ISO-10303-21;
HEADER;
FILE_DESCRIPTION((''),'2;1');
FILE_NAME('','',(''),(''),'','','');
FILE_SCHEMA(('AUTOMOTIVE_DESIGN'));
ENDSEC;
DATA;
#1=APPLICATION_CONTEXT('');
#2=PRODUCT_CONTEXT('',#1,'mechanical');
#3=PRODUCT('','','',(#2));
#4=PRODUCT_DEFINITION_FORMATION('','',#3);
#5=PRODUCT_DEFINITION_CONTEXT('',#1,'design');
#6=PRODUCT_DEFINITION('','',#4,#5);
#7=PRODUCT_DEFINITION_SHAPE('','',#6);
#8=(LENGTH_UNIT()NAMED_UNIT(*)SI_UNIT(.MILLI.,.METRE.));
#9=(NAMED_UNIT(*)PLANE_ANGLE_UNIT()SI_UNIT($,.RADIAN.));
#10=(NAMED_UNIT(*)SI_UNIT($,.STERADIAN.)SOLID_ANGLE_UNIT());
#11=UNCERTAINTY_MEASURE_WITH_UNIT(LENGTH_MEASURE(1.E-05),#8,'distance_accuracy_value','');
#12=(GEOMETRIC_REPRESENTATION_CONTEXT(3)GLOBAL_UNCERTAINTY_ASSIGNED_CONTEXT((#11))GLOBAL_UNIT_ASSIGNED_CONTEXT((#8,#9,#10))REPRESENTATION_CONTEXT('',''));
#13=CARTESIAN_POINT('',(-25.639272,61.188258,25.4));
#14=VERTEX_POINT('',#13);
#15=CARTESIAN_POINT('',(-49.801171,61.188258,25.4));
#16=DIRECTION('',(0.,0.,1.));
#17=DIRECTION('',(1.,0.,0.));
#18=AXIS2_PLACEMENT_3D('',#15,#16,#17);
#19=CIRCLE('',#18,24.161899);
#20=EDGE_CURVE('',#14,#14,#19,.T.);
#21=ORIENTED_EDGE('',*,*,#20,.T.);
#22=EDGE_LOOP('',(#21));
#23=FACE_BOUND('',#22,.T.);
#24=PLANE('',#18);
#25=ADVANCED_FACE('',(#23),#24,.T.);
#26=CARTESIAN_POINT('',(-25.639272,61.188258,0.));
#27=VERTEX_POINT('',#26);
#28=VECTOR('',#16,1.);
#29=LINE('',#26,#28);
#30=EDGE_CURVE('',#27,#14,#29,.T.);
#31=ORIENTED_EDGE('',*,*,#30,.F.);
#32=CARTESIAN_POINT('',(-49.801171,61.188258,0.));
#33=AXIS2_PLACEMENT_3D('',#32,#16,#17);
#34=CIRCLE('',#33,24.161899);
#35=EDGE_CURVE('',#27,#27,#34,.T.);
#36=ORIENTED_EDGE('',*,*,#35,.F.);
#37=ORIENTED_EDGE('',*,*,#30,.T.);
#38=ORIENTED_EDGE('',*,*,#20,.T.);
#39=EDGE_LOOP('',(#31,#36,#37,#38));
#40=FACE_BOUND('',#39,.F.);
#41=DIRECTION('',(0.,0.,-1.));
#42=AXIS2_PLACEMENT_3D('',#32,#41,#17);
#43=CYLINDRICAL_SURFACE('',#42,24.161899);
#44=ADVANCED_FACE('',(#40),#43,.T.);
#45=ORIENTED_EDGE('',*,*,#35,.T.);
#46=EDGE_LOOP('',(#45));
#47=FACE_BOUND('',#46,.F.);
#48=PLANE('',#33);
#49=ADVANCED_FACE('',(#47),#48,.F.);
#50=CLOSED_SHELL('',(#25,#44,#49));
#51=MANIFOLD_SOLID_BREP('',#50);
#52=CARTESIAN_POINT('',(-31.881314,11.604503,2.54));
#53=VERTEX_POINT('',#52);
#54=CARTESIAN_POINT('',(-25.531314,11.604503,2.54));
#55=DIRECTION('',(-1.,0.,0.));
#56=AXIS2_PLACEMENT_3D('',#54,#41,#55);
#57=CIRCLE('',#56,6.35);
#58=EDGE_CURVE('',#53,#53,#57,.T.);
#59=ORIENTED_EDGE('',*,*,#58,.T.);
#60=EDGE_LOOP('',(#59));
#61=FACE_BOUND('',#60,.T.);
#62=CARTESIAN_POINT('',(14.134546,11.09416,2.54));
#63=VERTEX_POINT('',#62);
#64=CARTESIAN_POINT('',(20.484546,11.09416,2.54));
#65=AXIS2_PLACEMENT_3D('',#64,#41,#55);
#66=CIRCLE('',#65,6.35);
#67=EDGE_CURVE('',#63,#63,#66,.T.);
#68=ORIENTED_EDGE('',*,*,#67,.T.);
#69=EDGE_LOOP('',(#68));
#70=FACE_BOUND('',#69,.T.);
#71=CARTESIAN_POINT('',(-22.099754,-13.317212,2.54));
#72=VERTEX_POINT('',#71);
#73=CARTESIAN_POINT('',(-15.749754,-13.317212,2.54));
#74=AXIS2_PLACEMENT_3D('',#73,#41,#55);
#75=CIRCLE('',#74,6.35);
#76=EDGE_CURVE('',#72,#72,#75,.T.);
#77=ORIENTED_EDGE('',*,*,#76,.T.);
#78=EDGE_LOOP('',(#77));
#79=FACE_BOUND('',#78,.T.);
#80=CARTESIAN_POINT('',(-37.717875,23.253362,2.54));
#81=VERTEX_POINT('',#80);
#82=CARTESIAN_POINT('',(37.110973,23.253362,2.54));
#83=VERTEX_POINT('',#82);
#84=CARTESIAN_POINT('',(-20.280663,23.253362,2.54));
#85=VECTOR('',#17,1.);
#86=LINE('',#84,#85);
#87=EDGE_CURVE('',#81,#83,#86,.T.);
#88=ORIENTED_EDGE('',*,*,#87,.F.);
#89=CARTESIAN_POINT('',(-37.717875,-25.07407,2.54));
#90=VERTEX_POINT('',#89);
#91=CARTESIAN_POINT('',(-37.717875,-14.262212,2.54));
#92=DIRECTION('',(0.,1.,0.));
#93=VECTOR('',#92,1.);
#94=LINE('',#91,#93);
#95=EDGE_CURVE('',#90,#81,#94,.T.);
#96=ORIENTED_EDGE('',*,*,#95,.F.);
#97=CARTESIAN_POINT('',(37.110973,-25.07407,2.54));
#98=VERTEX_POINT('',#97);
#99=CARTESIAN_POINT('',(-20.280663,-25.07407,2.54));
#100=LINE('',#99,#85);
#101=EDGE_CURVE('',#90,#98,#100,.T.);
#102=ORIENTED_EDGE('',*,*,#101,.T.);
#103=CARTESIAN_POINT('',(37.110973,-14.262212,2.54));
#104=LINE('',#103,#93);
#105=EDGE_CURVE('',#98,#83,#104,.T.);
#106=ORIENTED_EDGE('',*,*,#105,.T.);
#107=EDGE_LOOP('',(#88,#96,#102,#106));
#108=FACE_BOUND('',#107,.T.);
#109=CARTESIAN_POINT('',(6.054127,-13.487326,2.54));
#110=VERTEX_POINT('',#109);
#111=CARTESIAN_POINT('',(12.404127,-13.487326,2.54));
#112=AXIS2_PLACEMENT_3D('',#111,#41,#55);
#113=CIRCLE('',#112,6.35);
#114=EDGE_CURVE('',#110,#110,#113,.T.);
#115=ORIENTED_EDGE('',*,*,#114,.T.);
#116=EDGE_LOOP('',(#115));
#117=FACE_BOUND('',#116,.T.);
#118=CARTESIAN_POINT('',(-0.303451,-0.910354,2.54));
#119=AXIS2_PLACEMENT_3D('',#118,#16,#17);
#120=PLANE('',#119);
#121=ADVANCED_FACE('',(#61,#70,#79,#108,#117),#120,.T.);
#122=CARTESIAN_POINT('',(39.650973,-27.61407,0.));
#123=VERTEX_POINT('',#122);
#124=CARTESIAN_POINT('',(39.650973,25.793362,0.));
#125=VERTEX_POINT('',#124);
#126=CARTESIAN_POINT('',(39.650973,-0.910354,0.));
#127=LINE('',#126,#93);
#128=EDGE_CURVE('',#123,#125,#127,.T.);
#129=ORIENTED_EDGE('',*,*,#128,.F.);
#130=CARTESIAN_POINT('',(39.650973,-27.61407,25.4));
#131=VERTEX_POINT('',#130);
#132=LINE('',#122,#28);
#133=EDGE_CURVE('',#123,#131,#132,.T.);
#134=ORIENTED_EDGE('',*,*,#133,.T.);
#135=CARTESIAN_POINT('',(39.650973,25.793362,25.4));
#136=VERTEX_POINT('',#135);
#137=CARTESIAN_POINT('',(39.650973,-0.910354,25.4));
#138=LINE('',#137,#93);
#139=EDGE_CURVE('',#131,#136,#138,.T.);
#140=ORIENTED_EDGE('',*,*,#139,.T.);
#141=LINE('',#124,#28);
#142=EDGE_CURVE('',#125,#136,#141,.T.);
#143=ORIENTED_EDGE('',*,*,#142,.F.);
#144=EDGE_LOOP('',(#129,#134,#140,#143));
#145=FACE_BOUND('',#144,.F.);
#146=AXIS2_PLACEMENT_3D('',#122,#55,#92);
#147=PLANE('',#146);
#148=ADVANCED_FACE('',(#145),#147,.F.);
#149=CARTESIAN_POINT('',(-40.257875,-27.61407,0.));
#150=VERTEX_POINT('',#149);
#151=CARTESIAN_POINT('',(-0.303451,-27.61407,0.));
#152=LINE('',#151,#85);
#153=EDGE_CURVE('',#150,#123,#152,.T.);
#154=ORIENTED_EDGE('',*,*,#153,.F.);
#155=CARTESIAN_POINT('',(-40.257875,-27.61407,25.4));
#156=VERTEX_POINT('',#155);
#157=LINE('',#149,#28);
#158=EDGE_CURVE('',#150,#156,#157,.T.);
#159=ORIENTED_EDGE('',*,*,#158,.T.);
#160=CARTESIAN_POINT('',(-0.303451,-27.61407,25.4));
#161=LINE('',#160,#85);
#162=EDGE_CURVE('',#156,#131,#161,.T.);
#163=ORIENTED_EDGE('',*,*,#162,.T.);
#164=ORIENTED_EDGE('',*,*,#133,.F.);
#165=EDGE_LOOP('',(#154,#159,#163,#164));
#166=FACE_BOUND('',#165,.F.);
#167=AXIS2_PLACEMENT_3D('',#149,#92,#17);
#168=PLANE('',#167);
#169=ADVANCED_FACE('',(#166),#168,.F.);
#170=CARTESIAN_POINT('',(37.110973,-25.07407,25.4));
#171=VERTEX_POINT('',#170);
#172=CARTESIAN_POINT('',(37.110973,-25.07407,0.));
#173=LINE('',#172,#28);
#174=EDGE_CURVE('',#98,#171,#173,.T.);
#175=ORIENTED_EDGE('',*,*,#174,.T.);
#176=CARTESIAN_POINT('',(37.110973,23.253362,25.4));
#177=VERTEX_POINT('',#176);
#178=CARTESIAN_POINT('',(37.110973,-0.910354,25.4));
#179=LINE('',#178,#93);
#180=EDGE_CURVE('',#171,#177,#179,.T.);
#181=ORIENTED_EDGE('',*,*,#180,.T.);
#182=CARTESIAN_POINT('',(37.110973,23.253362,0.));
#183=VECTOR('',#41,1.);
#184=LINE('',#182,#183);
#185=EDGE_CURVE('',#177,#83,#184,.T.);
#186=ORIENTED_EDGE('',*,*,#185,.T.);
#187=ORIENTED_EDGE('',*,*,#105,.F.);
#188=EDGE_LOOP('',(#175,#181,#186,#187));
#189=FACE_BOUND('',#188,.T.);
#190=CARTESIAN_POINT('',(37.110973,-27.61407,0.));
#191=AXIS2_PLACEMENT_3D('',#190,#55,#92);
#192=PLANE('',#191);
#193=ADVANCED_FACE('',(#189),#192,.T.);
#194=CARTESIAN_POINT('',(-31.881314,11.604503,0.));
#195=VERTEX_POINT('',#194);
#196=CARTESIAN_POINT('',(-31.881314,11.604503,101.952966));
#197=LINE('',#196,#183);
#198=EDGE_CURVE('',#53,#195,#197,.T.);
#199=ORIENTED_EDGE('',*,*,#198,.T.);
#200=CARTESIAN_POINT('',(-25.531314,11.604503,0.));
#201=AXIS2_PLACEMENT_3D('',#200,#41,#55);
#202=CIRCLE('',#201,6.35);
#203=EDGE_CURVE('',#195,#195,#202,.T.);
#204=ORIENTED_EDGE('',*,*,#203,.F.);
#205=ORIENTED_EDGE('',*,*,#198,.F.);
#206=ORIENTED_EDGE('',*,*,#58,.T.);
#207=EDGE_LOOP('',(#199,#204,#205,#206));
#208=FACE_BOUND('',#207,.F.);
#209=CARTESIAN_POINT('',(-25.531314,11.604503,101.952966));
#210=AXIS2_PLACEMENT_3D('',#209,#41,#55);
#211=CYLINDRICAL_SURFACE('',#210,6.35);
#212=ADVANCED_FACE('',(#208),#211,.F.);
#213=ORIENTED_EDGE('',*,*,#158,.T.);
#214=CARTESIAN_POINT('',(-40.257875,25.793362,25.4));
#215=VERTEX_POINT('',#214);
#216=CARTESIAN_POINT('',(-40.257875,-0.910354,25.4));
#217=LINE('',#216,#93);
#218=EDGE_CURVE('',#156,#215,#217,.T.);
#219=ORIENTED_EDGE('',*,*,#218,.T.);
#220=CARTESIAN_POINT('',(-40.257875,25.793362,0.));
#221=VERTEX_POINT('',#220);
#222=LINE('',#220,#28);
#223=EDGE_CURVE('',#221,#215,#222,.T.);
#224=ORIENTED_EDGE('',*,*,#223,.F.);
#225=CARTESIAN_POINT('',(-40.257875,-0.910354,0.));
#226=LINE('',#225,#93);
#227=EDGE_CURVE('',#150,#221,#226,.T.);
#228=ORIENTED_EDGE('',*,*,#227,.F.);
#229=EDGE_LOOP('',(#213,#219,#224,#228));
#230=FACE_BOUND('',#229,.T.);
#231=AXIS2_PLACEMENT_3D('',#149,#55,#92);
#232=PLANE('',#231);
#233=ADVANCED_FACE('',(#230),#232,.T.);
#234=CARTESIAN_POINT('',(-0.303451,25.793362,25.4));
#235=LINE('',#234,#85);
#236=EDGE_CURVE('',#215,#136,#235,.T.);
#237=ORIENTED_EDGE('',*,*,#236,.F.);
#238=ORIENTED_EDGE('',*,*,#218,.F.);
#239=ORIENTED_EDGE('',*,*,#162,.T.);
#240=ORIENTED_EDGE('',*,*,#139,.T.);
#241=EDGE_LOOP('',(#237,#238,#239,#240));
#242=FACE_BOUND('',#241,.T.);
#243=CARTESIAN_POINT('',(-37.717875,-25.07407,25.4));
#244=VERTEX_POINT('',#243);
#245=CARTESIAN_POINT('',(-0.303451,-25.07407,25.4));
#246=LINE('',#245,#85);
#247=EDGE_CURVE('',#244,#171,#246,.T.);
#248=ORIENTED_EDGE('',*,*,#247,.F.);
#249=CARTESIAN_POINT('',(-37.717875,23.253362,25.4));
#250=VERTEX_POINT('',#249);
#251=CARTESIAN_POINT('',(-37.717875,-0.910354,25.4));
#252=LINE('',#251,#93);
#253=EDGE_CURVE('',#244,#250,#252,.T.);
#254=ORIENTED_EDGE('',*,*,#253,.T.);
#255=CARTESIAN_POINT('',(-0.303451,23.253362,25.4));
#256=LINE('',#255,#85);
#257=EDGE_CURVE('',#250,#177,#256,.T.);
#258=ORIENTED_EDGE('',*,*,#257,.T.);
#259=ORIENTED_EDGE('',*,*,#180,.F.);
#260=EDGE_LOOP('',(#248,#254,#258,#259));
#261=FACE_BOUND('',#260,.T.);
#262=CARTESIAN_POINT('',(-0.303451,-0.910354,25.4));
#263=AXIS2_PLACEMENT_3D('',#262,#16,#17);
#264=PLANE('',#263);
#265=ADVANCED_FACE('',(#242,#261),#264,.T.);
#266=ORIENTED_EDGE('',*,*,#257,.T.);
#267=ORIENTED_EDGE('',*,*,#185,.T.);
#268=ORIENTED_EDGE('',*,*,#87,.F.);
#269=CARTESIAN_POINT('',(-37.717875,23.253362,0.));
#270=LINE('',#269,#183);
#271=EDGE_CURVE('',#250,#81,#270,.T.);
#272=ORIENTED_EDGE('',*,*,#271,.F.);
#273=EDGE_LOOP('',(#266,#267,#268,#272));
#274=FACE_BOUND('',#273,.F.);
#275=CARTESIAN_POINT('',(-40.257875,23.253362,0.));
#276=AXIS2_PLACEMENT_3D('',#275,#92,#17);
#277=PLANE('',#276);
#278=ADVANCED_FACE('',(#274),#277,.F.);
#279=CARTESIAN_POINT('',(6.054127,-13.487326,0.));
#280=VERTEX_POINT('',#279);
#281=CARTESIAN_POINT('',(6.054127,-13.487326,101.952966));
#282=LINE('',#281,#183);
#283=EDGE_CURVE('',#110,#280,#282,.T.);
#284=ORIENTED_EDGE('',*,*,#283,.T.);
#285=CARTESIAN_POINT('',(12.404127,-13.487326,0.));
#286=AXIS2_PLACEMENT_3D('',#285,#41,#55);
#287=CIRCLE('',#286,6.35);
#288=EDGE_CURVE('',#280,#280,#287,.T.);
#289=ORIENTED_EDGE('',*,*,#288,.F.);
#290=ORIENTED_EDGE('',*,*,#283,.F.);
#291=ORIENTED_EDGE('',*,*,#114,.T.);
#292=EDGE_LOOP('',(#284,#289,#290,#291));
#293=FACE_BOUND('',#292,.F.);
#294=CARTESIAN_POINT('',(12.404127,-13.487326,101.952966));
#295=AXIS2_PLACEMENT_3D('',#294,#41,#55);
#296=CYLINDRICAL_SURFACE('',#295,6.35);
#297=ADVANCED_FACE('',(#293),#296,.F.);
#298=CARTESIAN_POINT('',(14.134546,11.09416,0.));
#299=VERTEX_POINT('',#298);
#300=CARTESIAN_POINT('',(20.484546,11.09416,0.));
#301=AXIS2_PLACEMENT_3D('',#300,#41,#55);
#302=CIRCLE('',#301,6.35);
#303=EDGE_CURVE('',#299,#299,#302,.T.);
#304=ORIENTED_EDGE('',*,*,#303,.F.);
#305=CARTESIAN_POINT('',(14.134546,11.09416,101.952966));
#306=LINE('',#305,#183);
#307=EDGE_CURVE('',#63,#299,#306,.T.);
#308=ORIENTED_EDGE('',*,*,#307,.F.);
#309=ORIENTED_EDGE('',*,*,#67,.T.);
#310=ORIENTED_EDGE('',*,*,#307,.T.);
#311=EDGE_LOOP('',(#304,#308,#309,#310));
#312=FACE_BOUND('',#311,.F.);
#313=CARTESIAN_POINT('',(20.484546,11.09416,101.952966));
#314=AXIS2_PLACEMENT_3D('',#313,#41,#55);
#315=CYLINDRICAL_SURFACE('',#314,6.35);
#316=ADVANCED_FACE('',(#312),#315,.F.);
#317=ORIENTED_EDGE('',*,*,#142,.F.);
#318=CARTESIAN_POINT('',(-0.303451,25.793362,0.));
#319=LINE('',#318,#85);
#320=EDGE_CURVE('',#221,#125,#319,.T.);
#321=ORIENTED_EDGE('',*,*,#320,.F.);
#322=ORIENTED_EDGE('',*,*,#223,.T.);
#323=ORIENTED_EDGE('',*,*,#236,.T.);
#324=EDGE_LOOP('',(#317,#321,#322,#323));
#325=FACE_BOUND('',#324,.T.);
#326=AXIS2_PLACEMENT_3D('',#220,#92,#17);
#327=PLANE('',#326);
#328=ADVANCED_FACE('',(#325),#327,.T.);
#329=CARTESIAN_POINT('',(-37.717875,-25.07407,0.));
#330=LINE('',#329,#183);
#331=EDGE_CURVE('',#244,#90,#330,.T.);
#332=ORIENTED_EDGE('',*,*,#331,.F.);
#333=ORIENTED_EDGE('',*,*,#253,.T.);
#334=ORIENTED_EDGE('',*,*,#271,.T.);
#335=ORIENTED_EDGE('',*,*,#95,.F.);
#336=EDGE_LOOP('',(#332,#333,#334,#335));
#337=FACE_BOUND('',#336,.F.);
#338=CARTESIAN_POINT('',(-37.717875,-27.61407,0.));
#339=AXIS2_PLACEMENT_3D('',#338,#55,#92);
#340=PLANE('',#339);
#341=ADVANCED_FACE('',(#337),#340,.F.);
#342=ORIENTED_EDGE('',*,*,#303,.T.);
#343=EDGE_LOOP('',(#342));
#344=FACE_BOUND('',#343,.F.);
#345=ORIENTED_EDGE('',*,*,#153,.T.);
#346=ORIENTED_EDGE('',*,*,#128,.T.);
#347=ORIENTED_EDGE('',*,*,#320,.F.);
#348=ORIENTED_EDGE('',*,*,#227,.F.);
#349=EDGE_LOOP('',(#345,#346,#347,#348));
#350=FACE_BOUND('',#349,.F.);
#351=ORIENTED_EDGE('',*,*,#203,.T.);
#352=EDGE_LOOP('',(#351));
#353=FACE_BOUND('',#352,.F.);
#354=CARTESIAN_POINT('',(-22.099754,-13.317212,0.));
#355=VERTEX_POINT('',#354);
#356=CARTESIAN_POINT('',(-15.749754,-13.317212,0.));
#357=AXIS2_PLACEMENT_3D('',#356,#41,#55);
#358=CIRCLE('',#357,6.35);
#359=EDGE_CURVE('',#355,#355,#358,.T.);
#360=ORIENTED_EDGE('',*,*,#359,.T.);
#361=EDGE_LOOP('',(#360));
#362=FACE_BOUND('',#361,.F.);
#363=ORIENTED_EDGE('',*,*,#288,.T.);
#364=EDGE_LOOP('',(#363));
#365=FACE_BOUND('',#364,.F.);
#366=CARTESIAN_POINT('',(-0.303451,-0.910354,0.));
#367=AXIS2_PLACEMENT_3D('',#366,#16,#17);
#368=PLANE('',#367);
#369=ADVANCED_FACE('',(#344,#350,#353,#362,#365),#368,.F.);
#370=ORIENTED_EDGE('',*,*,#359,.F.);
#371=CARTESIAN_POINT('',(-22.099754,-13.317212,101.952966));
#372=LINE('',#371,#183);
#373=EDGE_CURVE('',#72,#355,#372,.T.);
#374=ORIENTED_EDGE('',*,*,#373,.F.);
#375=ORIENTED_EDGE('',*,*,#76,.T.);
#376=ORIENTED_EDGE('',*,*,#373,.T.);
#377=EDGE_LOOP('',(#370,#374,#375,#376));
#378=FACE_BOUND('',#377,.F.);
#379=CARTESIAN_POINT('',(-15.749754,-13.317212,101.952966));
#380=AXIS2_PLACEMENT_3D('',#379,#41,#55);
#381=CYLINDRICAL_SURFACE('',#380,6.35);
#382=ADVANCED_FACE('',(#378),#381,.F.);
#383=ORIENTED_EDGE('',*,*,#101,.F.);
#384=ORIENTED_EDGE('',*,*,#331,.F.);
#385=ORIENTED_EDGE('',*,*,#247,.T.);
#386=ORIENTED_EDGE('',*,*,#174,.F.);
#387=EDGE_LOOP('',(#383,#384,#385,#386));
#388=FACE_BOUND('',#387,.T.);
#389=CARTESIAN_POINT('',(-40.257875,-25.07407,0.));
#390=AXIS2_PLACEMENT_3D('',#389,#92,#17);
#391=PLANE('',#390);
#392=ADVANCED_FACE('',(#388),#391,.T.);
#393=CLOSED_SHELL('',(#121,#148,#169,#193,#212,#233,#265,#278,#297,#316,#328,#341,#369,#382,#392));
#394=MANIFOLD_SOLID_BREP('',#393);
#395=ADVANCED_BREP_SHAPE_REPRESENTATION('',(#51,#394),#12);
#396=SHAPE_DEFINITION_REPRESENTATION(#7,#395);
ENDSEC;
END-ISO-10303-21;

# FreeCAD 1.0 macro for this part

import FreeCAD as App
import Part
import Sketcher

V = App.Vector
Q = App.Units.Quantity


def faces_at(feature, points):
    """Names of the faces that lie closest to the given points."""
    faces = feature.Shape.Faces
    near = lambda p: min(range(len(faces)), key=lambda i: faces[i].distToShape(Part.Vertex(*p))[0])
    return sorted({f"Face{near(p) + 1}" for p in points})


def add_polygon(sketch, points):
    """Adds a closed chain of lines whose ends are joined by coincident constraints."""
    first, n = sketch.GeometryCount, len(points)
    for a, b in zip(points, points[1:] + points[:1]):
        sketch.addGeometry(Part.LineSegment(App.Vector(*a, 0), App.Vector(*b, 0)), False)
    for i in range(n):
        sketch.addConstraint(Sketcher.Constraint("Coincident", first + i, 2, first + (i + 1) % n, 1))

doc = App.newDocument("Part")
body = doc.addObject("PartDesign::Body", "Body")

# Sketch on XY plane
sketch1 = body.newObject("Sketcher::SketchObject", "Sketch")
sketch1.AttachmentSupport = (doc.getObject("XY_Plane"), [""])
sketch1.MapMode = "FlatFace"
add_polygon(sketch1, [(-40, 26), (-40, -28), (40, -28), (40, 26)])  # lines 0-3
sketch1.addConstraint([
    Sketcher.Constraint("Vertical", 0),
    Sketcher.Constraint("Horizontal", 1),
    Sketcher.Constraint("Vertical", 2),
    Sketcher.Constraint("Horizontal", 3),
    Sketcher.Constraint("DistanceX", 1, 1, 1, 2, Q("79.908848 mm")),
    Sketcher.Constraint("DistanceY", 0, 2, 0, 1, Q("53.407432 mm")),
    Sketcher.Constraint("DistanceY", 0, 2, -1, 1, Q("27.61407 mm")),
    Sketcher.Constraint("DistanceX", 0, 2, -1, 1, Q("40.257875 mm")),
])
pad1 = body.newObject("PartDesign::Pad", "Pad")
pad1.Profile = sketch1
pad1.Length = Q("1 in")
doc.recompute()

thickness = body.newObject("PartDesign::Thickness", "Thickness")
thickness.Base = (pad1, faces_at(pad1, [(-0.303, -0.91, 25.4)]))
thickness.Value = Q("0.1 in")
thickness.Reversed = True
thickness.Join = "Arc"

# Sketch on XY plane
sketch2 = body.newObject("Sketcher::SketchObject", "Sketch001")
sketch2.AttachmentSupport = (doc.getObject("XY_Plane"), [""])
sketch2.MapMode = "FlatFace"
sketch2.AttachmentOffset = App.Placement(V(0, 0, 0.1 * 25.4), App.Rotation())
sketch2.addGeometry([
    Part.Circle(V(-26, 12, 0), V(0, 0, 1), 6),
    Part.Circle(V(20, 11, 0), V(0, 0, 1), 6),
    Part.Circle(V(12, -13, 0), V(0, 0, 1), 6),
    Part.Circle(V(-16, -13, 0), V(0, 0, 1), 6),
], False)
sketch2.addConstraint([
    Sketcher.Constraint("Equal", 0, 1),
    Sketcher.Constraint("Equal", 1, 2),
    Sketcher.Constraint("Equal", 2, 3),
    Sketcher.Constraint("Diameter", 0, Q("0.5 in")),
    Sketcher.Constraint("DistanceX", 3, 3, 1, 3, Q("36.2343 mm")),
    Sketcher.Constraint("DistanceY", -1, 1, 1, 3, Q("11.09416 mm")),
    Sketcher.Constraint("DistanceX", 0, 3, 1, 3, Q("46.01586 mm")),
    Sketcher.Constraint("DistanceX", 2, 3, 1, 3, Q("8.080419 mm")),
    Sketcher.Constraint("DistanceY", 2, 3, 0, 3, Q("25.091829 mm")),
    Sketcher.Constraint("DistanceY", 3, 3, 1, 3, Q("24.411372 mm")),
    Sketcher.Constraint("DistanceX", 0, 3, -1, 1, Q("25.531314 mm")),
    Sketcher.Constraint("DistanceY", -1, 1, 0, 3, Q("11.604503 mm")),
])
doc.recompute()
hole = body.newObject("PartDesign::Hole", "Hole")
hole.Profile = sketch2
hole.ThreadType = "None"
hole.Diameter = Q("0.5 in")
hole.DepthType = "ThroughAll"
body2 = doc.addObject("PartDesign::Body", "Body001")

# Sketch on XY plane
sketch3 = body2.newObject("Sketcher::SketchObject", "Sketch002")
sketch3.AttachmentSupport = (doc.getObject("XY_Plane001"), [""])
sketch3.MapMode = "FlatFace"
sketch3.addGeometry(Part.Circle(V(-50, 61, 0), V(0, 0, 1), 24), False)
sketch3.addConstraint([
    Sketcher.Constraint("Diameter", 0, Q("48.323798 mm")),
    Sketcher.Constraint("DistanceX", 0, 3, -1, 1, Q("49.801171 mm")),
    Sketcher.Constraint("DistanceY", -1, 1, 0, 3, Q("61.188258 mm")),
])
pad2 = body2.newObject("PartDesign::Pad", "Pad001")
pad2.Profile = sketch3
pad2.Length = Q("1 in")

doc.recompute()
